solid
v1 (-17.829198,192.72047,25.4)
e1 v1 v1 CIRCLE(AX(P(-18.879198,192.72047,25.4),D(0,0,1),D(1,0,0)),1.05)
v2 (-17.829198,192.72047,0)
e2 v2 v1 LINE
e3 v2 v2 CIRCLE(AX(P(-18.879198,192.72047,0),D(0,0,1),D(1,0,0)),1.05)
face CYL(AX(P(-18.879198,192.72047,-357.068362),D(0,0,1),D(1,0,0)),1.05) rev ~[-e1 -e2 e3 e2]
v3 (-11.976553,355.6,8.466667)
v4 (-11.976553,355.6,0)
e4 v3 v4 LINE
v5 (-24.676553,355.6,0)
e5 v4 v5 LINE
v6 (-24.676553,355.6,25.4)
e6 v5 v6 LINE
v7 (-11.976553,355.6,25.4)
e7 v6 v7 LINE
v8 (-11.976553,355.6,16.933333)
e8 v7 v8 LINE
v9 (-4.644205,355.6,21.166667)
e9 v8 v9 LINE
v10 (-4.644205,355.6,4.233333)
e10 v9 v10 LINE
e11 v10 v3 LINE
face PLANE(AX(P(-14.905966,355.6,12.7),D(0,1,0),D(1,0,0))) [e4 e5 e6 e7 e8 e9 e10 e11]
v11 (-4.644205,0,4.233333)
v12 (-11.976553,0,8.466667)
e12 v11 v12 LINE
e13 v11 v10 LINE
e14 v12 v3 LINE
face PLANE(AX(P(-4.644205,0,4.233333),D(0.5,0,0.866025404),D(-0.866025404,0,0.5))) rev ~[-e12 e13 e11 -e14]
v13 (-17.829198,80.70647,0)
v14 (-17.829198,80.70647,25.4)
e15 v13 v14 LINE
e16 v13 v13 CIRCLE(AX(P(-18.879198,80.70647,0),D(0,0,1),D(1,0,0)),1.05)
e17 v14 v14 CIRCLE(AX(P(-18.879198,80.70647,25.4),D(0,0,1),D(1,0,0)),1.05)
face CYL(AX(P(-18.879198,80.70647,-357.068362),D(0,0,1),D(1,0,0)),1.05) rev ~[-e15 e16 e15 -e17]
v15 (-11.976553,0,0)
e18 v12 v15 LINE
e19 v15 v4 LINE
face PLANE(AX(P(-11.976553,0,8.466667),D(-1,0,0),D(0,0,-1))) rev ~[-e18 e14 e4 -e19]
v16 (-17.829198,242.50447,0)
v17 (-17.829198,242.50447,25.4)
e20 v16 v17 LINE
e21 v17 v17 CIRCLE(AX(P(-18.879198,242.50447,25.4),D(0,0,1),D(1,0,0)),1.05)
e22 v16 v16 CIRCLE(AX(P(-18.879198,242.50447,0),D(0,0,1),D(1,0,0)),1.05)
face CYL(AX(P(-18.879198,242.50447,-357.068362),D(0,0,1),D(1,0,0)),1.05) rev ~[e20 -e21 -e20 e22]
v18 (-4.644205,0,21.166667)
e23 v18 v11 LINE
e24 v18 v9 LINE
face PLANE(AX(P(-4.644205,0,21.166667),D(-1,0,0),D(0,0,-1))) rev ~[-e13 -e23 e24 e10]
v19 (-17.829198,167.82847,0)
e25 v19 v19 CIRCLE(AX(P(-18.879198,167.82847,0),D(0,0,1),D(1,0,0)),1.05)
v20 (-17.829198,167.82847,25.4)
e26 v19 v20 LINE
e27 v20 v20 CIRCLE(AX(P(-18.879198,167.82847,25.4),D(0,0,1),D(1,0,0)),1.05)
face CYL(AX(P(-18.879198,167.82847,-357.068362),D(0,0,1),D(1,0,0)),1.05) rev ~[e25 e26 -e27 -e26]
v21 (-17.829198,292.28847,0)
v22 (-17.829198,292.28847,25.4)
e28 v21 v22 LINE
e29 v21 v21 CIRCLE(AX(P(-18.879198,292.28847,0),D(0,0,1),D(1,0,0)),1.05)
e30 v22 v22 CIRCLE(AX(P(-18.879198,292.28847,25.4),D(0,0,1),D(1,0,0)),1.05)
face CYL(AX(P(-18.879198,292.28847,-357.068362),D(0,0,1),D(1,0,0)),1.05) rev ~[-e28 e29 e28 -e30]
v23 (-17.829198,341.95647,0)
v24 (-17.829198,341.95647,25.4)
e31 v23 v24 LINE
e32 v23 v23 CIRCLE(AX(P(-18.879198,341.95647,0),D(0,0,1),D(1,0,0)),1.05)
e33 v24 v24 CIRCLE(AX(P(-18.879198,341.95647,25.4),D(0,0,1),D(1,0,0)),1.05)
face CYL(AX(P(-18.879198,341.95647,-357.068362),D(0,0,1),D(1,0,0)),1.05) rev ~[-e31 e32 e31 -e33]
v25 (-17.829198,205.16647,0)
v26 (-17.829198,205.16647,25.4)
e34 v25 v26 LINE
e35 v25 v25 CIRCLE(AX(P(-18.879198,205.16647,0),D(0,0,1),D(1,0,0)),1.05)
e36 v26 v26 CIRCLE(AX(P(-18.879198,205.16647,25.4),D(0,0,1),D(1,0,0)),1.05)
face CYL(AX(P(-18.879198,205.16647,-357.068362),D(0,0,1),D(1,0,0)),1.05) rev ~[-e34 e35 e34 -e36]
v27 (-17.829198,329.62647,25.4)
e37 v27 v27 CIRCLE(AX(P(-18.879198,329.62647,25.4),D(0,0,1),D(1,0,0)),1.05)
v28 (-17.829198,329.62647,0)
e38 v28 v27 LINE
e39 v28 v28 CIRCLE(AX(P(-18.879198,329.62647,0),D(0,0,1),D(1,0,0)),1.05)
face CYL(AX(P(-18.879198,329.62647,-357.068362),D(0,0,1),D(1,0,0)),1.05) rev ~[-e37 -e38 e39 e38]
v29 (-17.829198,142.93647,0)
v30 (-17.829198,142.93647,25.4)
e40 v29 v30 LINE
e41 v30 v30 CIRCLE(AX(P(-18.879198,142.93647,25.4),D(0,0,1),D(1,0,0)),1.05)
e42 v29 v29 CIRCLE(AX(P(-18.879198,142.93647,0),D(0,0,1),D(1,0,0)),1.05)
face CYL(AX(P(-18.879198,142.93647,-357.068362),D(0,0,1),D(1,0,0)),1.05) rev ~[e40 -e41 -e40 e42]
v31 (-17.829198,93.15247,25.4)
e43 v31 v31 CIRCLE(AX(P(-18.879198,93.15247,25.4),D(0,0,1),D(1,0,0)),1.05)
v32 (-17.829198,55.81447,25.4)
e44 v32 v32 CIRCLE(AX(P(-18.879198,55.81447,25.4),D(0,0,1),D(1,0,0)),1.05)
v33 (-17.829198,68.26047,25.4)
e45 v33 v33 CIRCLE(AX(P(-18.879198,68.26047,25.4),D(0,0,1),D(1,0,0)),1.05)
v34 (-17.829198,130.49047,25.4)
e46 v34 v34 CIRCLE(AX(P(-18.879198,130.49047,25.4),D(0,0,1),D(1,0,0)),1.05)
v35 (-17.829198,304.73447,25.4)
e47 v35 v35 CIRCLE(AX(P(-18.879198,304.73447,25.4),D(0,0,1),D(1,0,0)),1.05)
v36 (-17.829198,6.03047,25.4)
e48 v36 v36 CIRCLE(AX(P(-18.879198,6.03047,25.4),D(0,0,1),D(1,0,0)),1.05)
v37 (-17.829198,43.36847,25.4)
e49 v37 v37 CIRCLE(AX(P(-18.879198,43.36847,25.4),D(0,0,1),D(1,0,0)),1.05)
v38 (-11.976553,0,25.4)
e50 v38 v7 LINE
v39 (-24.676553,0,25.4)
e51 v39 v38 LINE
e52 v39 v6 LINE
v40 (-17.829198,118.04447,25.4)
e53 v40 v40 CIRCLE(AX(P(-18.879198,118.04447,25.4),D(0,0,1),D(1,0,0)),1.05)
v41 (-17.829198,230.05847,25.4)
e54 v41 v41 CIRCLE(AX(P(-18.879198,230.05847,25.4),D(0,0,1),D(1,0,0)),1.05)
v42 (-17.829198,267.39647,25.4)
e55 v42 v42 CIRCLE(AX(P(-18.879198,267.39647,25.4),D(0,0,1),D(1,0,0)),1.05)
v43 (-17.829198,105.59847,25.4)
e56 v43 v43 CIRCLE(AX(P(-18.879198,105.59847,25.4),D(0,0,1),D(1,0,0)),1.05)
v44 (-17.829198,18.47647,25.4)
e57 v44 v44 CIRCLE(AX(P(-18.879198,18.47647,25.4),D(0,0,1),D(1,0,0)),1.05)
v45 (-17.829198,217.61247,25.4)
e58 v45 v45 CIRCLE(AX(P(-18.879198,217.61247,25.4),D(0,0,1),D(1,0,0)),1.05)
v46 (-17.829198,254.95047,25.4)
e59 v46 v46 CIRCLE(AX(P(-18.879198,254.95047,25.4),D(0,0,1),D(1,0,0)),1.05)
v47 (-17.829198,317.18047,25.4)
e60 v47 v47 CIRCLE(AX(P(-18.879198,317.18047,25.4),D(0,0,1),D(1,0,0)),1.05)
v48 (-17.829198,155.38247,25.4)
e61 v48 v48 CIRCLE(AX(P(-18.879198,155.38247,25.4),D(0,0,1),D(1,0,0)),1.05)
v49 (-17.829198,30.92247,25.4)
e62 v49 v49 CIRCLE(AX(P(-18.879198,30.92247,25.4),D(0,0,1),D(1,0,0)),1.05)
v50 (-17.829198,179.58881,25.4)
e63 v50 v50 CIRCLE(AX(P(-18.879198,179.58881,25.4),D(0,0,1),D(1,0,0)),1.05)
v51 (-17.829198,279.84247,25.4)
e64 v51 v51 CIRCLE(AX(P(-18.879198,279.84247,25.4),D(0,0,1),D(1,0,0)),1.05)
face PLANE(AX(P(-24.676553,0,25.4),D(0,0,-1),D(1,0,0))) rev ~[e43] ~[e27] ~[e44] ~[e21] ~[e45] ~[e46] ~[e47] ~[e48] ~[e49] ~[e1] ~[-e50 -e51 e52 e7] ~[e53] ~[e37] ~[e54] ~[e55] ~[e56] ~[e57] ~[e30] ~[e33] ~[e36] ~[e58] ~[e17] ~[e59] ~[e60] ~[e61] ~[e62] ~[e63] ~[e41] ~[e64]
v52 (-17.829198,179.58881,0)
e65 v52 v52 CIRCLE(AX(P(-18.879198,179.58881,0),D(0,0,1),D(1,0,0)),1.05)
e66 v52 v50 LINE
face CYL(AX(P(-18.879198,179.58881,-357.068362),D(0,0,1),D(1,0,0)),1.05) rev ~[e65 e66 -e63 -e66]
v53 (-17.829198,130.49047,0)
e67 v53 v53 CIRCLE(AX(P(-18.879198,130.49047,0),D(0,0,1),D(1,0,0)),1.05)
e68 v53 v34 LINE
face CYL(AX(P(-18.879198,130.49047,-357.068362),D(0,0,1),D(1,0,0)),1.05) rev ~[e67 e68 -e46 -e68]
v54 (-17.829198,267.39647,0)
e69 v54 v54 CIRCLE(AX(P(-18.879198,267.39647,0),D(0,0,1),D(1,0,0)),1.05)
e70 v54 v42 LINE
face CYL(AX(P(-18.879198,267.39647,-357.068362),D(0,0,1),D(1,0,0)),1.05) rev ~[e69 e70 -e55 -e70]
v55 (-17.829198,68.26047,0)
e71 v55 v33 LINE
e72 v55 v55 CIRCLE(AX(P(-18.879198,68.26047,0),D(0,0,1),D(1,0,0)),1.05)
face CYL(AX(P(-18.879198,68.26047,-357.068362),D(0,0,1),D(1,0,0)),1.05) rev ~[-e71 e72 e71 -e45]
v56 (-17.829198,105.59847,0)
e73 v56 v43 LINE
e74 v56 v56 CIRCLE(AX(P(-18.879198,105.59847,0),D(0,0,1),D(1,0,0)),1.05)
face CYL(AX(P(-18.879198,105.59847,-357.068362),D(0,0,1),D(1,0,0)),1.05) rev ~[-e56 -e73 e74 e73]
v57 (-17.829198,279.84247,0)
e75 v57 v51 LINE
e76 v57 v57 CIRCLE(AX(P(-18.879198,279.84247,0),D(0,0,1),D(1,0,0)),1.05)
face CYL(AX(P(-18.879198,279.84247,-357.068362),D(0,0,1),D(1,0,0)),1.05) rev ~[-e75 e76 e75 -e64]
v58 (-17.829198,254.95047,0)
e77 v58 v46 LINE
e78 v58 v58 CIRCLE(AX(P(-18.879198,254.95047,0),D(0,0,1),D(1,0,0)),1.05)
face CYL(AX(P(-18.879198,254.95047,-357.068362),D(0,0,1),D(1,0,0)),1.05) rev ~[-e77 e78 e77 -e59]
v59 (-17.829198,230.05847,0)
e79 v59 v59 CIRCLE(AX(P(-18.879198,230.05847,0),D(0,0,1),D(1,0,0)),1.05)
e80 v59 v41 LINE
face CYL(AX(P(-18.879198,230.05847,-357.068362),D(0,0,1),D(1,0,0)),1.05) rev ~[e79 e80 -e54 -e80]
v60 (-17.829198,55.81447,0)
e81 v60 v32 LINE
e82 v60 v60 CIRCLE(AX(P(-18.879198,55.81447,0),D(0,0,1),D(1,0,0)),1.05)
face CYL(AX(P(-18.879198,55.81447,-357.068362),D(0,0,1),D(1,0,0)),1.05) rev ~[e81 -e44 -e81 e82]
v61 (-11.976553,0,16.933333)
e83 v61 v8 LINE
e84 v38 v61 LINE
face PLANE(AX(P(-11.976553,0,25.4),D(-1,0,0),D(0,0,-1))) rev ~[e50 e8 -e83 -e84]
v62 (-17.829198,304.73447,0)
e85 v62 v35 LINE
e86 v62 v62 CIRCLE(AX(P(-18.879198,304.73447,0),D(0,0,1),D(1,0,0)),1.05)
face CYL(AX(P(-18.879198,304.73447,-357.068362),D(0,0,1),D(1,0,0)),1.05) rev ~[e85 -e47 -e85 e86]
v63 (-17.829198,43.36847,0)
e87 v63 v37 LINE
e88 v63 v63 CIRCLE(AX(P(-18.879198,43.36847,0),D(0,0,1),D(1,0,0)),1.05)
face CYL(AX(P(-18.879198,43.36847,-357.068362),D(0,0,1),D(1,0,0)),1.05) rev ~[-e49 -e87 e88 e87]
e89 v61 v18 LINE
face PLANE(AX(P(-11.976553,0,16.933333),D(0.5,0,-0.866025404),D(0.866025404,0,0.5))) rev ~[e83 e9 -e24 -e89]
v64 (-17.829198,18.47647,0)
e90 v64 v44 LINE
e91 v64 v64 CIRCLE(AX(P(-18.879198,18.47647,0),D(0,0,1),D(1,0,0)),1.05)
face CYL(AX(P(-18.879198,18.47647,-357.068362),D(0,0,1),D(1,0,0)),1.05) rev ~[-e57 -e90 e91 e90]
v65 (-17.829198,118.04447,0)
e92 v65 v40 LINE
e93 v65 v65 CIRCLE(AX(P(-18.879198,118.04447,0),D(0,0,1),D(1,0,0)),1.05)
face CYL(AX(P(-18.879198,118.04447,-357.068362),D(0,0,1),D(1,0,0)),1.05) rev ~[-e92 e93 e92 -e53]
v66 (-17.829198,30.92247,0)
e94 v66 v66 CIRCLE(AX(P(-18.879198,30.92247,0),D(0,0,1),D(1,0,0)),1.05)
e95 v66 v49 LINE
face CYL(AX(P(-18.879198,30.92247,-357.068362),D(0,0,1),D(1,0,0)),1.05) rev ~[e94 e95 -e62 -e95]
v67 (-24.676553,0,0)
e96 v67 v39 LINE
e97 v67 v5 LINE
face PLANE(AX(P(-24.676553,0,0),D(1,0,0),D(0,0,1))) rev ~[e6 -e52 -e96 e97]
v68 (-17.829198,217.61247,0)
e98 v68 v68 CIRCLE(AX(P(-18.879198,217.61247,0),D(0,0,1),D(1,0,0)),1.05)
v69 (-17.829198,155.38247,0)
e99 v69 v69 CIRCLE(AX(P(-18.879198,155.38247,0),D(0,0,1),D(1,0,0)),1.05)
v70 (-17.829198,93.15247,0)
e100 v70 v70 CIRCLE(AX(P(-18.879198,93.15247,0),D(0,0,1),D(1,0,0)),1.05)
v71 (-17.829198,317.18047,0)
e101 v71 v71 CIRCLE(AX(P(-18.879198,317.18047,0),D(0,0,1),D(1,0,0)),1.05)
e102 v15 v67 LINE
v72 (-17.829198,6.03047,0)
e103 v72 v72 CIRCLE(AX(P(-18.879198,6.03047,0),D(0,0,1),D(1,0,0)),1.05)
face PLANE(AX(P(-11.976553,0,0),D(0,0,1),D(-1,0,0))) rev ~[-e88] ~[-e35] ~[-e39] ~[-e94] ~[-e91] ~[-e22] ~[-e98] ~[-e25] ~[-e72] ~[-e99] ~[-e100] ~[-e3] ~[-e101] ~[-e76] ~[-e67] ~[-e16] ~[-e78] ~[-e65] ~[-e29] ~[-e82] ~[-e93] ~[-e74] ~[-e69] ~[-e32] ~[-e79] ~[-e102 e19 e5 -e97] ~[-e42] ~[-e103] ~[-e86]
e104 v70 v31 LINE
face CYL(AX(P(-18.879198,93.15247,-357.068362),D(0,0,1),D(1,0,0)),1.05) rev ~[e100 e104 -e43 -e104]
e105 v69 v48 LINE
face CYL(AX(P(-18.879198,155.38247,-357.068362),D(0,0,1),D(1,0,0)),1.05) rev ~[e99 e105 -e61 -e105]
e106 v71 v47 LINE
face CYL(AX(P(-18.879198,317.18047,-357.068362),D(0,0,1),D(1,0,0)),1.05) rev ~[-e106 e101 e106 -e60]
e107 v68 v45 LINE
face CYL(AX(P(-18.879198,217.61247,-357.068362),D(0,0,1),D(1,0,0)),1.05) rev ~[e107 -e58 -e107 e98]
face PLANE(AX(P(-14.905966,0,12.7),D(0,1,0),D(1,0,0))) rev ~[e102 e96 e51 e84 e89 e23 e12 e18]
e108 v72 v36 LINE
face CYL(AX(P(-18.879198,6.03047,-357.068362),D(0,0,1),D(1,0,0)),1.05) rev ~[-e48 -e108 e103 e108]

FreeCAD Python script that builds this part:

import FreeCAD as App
import Part
import Sketcher

V = App.Vector
Q = App.Units.Quantity

doc = App.newDocument("Part")
params = doc.addObject("Spreadsheet::Sheet", "Params")
for row, (alias, value) in enumerate([
    ("sketch1_height", "1 in"),
    ("sketch1_width", "0.5 in"),
    ("pad1_length", "14 in"),
    ("hole_diameter", "2.1 mm"),
], start=1):
    params.set(f"A{row}", alias)
    params.set(f"B{row}", "=" + value)
    params.setAlias(f"B{row}", alias)

body = doc.addObject("PartDesign::Body", "Body")

# Sketch on XZ plane
sketch1 = body.newObject("Sketcher::SketchObject", "Sketch")
sketch1.AttachmentSupport = (doc.getObject("XZ_Plane"), [""])
sketch1.MapMode = "FlatFace"
sketch1.addGeometry([
    Part.LineSegment(V(-25, 0, 0), V(-25, 25, 0)),  # 0
    Part.LineSegment(V(-25, 25, 0), V(-12, 25, 0)),  # 1
    Part.LineSegment(V(-12, 25, 0), V(-12, 17, 0)),  # 2
    Part.LineSegment(V(-12, 17, 0), V(-5, 21, 0)),  # 3
    Part.LineSegment(V(-5, 21, 0), V(-5, 4, 0)),  # 4
    Part.LineSegment(V(-5, 4, 0), V(-12, 8, 0)),  # 5
    Part.LineSegment(V(-12, 8, 0), V(-12, 0, 0)),  # 6
    Part.LineSegment(V(-12, 0, 0), V(-25, 0, 0)),  # 7
], False)
sketch1.addConstraint([
    Sketcher.Constraint("Coincident", 0, 2, 1, 1),
    Sketcher.Constraint("Coincident", 1, 2, 2, 1),
    Sketcher.Constraint("Coincident", 2, 2, 3, 1),
    Sketcher.Constraint("Coincident", 3, 2, 4, 1),
    Sketcher.Constraint("Coincident", 4, 2, 5, 1),
    Sketcher.Constraint("Coincident", 5, 2, 6, 1),
    Sketcher.Constraint("Coincident", 6, 2, 7, 1),
    Sketcher.Constraint("Coincident", 7, 2, 0, 1),
    Sketcher.Constraint("Vertical", 0),
    Sketcher.Constraint("Horizontal", 1),
    Sketcher.Constraint("Vertical", 2),
    Sketcher.Constraint("Vertical", 4),
    Sketcher.Constraint("Vertical", 6),
    Sketcher.Constraint("Horizontal", 7),
    Sketcher.Constraint("PointOnObject", 6, 2, -1),
    Sketcher.Constraint("Vertical", 2, 2, 5, 2),
    Sketcher.Constraint("Equal", 2, 6),
    Sketcher.Constraint("Equal", 3, 5),
    Sketcher.Constraint("DistanceY", 0, 1, 0, 2, Q("1 in")),
    Sketcher.Constraint("DistanceX", 1, 1, 1, 2, Q("0.5 in")),
    Sketcher.Constraint("Angle", 3, Q("30 deg")),
    Sketcher.Constraint("DistanceY", 4, 2, 2, 2, Q("0.5 in")),
    Sketcher.Constraint("DistanceY", 2, 2, 2, 1, 8.466667),
    Sketcher.Constraint("DistanceX", 0, 2, -1, 1, 24.676553),
])
sketch1.setExpression("Constraints[18]", "Params.sketch1_height")
sketch1.setExpression("Constraints[19]", "Params.sketch1_width")
pad1 = body.newObject("PartDesign::Pad", "Pad")
pad1.Profile = sketch1
pad1.setExpression("Length", "Params.pad1_length")
pad1.Reversed = True

# Sketch on XY plane
sketch2 = body.newObject("Sketcher::SketchObject", "Sketch001")
sketch2.AttachmentSupport = (doc.getObject("XY_Plane"), [""])
sketch2.MapMode = "FlatFace"
sketch2.addGeometry([
    Part.Circle(V(-18.9, 342, 0), V(0, 0, 1), 1.1),  # 0
    Part.Circle(V(-18.9, 329.6, 0), V(0, 0, 1), 1.1),  # 1
    Part.Circle(V(-18.9, 317.2, 0), V(0, 0, 1), 1.1),  # 2
    Part.Circle(V(-18.9, 304.7, 0), V(0, 0, 1), 1.1),  # 3
    Part.Circle(V(-18.9, 292.3, 0), V(0, 0, 1), 1.1),  # 4
    Part.Circle(V(-18.9, 279.8, 0), V(0, 0, 1), 1.1),  # 5
    Part.Circle(V(-18.9, 267.4, 0), V(0, 0, 1), 1.1),  # 6
    Part.Circle(V(-18.9, 255, 0), V(0, 0, 1), 1.1),  # 7
    Part.Circle(V(-18.9, 242.5, 0), V(0, 0, 1), 1.1),  # 8
    Part.Circle(V(-18.9, 230.1, 0), V(0, 0, 1), 1.1),  # 9
    Part.Circle(V(-18.9, 217.6, 0), V(0, 0, 1), 1.1),  # 10
    Part.Circle(V(-18.9, 205.2, 0), V(0, 0, 1), 1.1),  # 11
    Part.Circle(V(-18.9, 192.7, 0), V(0, 0, 1), 1.1),  # 12
    Part.Circle(V(-18.9, 179.6, 0), V(0, 0, 1), 1.1),  # 13
    Part.Circle(V(-18.9, 167.8, 0), V(0, 0, 1), 1.1),  # 14
    Part.Circle(V(-18.9, 155.4, 0), V(0, 0, 1), 1.1),  # 15
    Part.Circle(V(-18.9, 142.9, 0), V(0, 0, 1), 1.1),  # 16
    Part.Circle(V(-18.9, 130.5, 0), V(0, 0, 1), 1.1),  # 17
    Part.Circle(V(-18.9, 118, 0), V(0, 0, 1), 1.1),  # 18
    Part.Circle(V(-18.9, 105.6, 0), V(0, 0, 1), 1.1),  # 19
    Part.Circle(V(-18.9, 93.2, 0), V(0, 0, 1), 1.1),  # 20
    Part.Circle(V(-18.9, 80.7, 0), V(0, 0, 1), 1.1),  # 21
    Part.Circle(V(-18.9, 68.3, 0), V(0, 0, 1), 1.1),  # 22
    Part.Circle(V(-18.9, 55.8, 0), V(0, 0, 1), 1.1),  # 23
    Part.Circle(V(-18.9, 43.4, 0), V(0, 0, 1), 1.1),  # 24
    Part.Circle(V(-18.9, 30.9, 0), V(0, 0, 1), 1.1),  # 25
    Part.Circle(V(-18.9, 18.5, 0), V(0, 0, 1), 1.1),  # 26
    Part.Circle(V(-18.9, 6, 0), V(0, 0, 1), 1.1),  # 27
], False)
sketch2.addConstraint([
    Sketcher.Constraint("Equal", 0, 1),
    Sketcher.Constraint("Equal", 1, 2),
    Sketcher.Constraint("Equal", 2, 3),
    Sketcher.Constraint("Equal", 3, 4),
    Sketcher.Constraint("Equal", 4, 5),
    Sketcher.Constraint("Equal", 5, 6),
    Sketcher.Constraint("Equal", 6, 7),
    Sketcher.Constraint("Equal", 7, 8),
    Sketcher.Constraint("Equal", 8, 9),
    Sketcher.Constraint("Equal", 9, 10),
    Sketcher.Constraint("Equal", 10, 11),
    Sketcher.Constraint("Equal", 11, 12),
    Sketcher.Constraint("Equal", 12, 13),
    Sketcher.Constraint("Equal", 13, 14),
    Sketcher.Constraint("Equal", 14, 15),
    Sketcher.Constraint("Equal", 15, 16),
    Sketcher.Constraint("Equal", 16, 17),
    Sketcher.Constraint("Equal", 17, 18),
    Sketcher.Constraint("Equal", 18, 19),
    Sketcher.Constraint("Equal", 19, 20),
    Sketcher.Constraint("Equal", 20, 21),
    Sketcher.Constraint("Equal", 21, 22),
    Sketcher.Constraint("Equal", 22, 23),
    Sketcher.Constraint("Equal", 23, 24),
    Sketcher.Constraint("Equal", 24, 25),
    Sketcher.Constraint("Equal", 25, 26),
    Sketcher.Constraint("Equal", 26, 27),
    Sketcher.Constraint("Vertical", 0, 3, 1, 3),
    Sketcher.Constraint("Vertical", 1, 3, 2, 3),
    Sketcher.Constraint("Vertical", 2, 3, 3, 3),
    Sketcher.Constraint("Vertical", 3, 3, 4, 3),
    Sketcher.Constraint("Vertical", 4, 3, 5, 3),
    Sketcher.Constraint("Vertical", 5, 3, 6, 3),
    Sketcher.Constraint("Vertical", 6, 3, 7, 3),
    Sketcher.Constraint("Vertical", 7, 3, 8, 3),
    Sketcher.Constraint("Vertical", 8, 3, 9, 3),
    Sketcher.Constraint("Vertical", 9, 3, 10, 3),
    Sketcher.Constraint("Vertical", 10, 3, 11, 3),
    Sketcher.Constraint("Vertical", 11, 3, 12, 3),
    Sketcher.Constraint("Vertical", 12, 3, 13, 3),
    Sketcher.Constraint("Vertical", 13, 3, 14, 3),
    Sketcher.Constraint("Vertical", 14, 3, 15, 3),
    Sketcher.Constraint("Vertical", 15, 3, 16, 3),
    Sketcher.Constraint("Vertical", 16, 3, 17, 3),
    Sketcher.Constraint("Vertical", 17, 3, 18, 3),
    Sketcher.Constraint("Vertical", 18, 3, 19, 3),
    Sketcher.Constraint("Vertical", 19, 3, 20, 3),
    Sketcher.Constraint("Vertical", 20, 3, 21, 3),
    Sketcher.Constraint("Vertical", 21, 3, 22, 3),
    Sketcher.Constraint("Vertical", 22, 3, 23, 3),
    Sketcher.Constraint("Vertical", 23, 3, 24, 3),
    Sketcher.Constraint("Vertical", 24, 3, 25, 3),
    Sketcher.Constraint("Vertical", 25, 3, 26, 3),
    Sketcher.Constraint("Vertical", 26, 3, 27, 3),
    Sketcher.Constraint("Diameter", 0, 2.1),
    Sketcher.Constraint("DistanceY", 2, 3, 1, 3, Q("0.49 in")),
    Sketcher.Constraint("DistanceY", 3, 3, 2, 3, Q("0.49 in")),
    Sketcher.Constraint("DistanceY", 4, 3, 3, 3, Q("0.49 in")),
    Sketcher.Constraint("DistanceY", 5, 3, 4, 3, Q("0.49 in")),
    Sketcher.Constraint("DistanceY", 6, 3, 5, 3, Q("0.49 in")),
    Sketcher.Constraint("DistanceY", 7, 3, 6, 3, Q("0.49 in")),
    Sketcher.Constraint("DistanceY", 8, 3, 7, 3, Q("0.49 in")),
    Sketcher.Constraint("DistanceY", 9, 3, 8, 3, Q("0.49 in")),
    Sketcher.Constraint("DistanceY", 10, 3, 9, 3, Q("0.49 in")),
    Sketcher.Constraint("DistanceY", 11, 3, 10, 3, Q("0.49 in")),
    Sketcher.Constraint("DistanceY", 12, 3, 11, 3, Q("0.49 in")),
    Sketcher.Constraint("DistanceY", 14, 3, 12, 3, Q("0.98 in")),
    Sketcher.Constraint("DistanceY", 15, 3, 14, 3, Q("0.49 in")),
    Sketcher.Constraint("DistanceY", 16, 3, 15, 3, Q("0.49 in")),
    Sketcher.Constraint("DistanceY", 17, 3, 16, 3, Q("0.49 in")),
    Sketcher.Constraint("DistanceY", 18, 3, 17, 3, Q("0.49 in")),
    Sketcher.Constraint("DistanceY", 19, 3, 18, 3, Q("0.49 in")),
    Sketcher.Constraint("DistanceY", 20, 3, 19, 3, Q("0.49 in")),
    Sketcher.Constraint("DistanceY", 21, 3, 20, 3, Q("0.49 in")),
    Sketcher.Constraint("DistanceY", 22, 3, 21, 3, Q("0.49 in")),
    Sketcher.Constraint("DistanceY", 23, 3, 22, 3, Q("0.49 in")),
    Sketcher.Constraint("DistanceY", 24, 3, 23, 3, Q("0.49 in")),
    Sketcher.Constraint("DistanceY", 25, 3, 24, 3, Q("0.49 in")),
    Sketcher.Constraint("DistanceY", 26, 3, 25, 3, Q("0.49 in")),
    Sketcher.Constraint("DistanceY", 27, 3, 26, 3, Q("0.49 in")),
    Sketcher.Constraint("DistanceY", 1, 3, 0, 3, 12.33),
    Sketcher.Constraint("DistanceY", -1, 1, 0, 3, 341.95647),
    Sketcher.Constraint("DistanceY", -1, 1, 13, 3, 179.58881),
    Sketcher.Constraint("DistanceX", 0, 3, -1, 1, 18.879198),
])
doc.recompute()
hole = body.newObject("PartDesign::Hole", "Hole")
hole.Profile = sketch2
hole.ThreadType = "None"
hole.setExpression("Diameter", "Params.hole_diameter")
hole.DepthType = "ThroughAll"
hole.Reversed = True

doc.recompute()
